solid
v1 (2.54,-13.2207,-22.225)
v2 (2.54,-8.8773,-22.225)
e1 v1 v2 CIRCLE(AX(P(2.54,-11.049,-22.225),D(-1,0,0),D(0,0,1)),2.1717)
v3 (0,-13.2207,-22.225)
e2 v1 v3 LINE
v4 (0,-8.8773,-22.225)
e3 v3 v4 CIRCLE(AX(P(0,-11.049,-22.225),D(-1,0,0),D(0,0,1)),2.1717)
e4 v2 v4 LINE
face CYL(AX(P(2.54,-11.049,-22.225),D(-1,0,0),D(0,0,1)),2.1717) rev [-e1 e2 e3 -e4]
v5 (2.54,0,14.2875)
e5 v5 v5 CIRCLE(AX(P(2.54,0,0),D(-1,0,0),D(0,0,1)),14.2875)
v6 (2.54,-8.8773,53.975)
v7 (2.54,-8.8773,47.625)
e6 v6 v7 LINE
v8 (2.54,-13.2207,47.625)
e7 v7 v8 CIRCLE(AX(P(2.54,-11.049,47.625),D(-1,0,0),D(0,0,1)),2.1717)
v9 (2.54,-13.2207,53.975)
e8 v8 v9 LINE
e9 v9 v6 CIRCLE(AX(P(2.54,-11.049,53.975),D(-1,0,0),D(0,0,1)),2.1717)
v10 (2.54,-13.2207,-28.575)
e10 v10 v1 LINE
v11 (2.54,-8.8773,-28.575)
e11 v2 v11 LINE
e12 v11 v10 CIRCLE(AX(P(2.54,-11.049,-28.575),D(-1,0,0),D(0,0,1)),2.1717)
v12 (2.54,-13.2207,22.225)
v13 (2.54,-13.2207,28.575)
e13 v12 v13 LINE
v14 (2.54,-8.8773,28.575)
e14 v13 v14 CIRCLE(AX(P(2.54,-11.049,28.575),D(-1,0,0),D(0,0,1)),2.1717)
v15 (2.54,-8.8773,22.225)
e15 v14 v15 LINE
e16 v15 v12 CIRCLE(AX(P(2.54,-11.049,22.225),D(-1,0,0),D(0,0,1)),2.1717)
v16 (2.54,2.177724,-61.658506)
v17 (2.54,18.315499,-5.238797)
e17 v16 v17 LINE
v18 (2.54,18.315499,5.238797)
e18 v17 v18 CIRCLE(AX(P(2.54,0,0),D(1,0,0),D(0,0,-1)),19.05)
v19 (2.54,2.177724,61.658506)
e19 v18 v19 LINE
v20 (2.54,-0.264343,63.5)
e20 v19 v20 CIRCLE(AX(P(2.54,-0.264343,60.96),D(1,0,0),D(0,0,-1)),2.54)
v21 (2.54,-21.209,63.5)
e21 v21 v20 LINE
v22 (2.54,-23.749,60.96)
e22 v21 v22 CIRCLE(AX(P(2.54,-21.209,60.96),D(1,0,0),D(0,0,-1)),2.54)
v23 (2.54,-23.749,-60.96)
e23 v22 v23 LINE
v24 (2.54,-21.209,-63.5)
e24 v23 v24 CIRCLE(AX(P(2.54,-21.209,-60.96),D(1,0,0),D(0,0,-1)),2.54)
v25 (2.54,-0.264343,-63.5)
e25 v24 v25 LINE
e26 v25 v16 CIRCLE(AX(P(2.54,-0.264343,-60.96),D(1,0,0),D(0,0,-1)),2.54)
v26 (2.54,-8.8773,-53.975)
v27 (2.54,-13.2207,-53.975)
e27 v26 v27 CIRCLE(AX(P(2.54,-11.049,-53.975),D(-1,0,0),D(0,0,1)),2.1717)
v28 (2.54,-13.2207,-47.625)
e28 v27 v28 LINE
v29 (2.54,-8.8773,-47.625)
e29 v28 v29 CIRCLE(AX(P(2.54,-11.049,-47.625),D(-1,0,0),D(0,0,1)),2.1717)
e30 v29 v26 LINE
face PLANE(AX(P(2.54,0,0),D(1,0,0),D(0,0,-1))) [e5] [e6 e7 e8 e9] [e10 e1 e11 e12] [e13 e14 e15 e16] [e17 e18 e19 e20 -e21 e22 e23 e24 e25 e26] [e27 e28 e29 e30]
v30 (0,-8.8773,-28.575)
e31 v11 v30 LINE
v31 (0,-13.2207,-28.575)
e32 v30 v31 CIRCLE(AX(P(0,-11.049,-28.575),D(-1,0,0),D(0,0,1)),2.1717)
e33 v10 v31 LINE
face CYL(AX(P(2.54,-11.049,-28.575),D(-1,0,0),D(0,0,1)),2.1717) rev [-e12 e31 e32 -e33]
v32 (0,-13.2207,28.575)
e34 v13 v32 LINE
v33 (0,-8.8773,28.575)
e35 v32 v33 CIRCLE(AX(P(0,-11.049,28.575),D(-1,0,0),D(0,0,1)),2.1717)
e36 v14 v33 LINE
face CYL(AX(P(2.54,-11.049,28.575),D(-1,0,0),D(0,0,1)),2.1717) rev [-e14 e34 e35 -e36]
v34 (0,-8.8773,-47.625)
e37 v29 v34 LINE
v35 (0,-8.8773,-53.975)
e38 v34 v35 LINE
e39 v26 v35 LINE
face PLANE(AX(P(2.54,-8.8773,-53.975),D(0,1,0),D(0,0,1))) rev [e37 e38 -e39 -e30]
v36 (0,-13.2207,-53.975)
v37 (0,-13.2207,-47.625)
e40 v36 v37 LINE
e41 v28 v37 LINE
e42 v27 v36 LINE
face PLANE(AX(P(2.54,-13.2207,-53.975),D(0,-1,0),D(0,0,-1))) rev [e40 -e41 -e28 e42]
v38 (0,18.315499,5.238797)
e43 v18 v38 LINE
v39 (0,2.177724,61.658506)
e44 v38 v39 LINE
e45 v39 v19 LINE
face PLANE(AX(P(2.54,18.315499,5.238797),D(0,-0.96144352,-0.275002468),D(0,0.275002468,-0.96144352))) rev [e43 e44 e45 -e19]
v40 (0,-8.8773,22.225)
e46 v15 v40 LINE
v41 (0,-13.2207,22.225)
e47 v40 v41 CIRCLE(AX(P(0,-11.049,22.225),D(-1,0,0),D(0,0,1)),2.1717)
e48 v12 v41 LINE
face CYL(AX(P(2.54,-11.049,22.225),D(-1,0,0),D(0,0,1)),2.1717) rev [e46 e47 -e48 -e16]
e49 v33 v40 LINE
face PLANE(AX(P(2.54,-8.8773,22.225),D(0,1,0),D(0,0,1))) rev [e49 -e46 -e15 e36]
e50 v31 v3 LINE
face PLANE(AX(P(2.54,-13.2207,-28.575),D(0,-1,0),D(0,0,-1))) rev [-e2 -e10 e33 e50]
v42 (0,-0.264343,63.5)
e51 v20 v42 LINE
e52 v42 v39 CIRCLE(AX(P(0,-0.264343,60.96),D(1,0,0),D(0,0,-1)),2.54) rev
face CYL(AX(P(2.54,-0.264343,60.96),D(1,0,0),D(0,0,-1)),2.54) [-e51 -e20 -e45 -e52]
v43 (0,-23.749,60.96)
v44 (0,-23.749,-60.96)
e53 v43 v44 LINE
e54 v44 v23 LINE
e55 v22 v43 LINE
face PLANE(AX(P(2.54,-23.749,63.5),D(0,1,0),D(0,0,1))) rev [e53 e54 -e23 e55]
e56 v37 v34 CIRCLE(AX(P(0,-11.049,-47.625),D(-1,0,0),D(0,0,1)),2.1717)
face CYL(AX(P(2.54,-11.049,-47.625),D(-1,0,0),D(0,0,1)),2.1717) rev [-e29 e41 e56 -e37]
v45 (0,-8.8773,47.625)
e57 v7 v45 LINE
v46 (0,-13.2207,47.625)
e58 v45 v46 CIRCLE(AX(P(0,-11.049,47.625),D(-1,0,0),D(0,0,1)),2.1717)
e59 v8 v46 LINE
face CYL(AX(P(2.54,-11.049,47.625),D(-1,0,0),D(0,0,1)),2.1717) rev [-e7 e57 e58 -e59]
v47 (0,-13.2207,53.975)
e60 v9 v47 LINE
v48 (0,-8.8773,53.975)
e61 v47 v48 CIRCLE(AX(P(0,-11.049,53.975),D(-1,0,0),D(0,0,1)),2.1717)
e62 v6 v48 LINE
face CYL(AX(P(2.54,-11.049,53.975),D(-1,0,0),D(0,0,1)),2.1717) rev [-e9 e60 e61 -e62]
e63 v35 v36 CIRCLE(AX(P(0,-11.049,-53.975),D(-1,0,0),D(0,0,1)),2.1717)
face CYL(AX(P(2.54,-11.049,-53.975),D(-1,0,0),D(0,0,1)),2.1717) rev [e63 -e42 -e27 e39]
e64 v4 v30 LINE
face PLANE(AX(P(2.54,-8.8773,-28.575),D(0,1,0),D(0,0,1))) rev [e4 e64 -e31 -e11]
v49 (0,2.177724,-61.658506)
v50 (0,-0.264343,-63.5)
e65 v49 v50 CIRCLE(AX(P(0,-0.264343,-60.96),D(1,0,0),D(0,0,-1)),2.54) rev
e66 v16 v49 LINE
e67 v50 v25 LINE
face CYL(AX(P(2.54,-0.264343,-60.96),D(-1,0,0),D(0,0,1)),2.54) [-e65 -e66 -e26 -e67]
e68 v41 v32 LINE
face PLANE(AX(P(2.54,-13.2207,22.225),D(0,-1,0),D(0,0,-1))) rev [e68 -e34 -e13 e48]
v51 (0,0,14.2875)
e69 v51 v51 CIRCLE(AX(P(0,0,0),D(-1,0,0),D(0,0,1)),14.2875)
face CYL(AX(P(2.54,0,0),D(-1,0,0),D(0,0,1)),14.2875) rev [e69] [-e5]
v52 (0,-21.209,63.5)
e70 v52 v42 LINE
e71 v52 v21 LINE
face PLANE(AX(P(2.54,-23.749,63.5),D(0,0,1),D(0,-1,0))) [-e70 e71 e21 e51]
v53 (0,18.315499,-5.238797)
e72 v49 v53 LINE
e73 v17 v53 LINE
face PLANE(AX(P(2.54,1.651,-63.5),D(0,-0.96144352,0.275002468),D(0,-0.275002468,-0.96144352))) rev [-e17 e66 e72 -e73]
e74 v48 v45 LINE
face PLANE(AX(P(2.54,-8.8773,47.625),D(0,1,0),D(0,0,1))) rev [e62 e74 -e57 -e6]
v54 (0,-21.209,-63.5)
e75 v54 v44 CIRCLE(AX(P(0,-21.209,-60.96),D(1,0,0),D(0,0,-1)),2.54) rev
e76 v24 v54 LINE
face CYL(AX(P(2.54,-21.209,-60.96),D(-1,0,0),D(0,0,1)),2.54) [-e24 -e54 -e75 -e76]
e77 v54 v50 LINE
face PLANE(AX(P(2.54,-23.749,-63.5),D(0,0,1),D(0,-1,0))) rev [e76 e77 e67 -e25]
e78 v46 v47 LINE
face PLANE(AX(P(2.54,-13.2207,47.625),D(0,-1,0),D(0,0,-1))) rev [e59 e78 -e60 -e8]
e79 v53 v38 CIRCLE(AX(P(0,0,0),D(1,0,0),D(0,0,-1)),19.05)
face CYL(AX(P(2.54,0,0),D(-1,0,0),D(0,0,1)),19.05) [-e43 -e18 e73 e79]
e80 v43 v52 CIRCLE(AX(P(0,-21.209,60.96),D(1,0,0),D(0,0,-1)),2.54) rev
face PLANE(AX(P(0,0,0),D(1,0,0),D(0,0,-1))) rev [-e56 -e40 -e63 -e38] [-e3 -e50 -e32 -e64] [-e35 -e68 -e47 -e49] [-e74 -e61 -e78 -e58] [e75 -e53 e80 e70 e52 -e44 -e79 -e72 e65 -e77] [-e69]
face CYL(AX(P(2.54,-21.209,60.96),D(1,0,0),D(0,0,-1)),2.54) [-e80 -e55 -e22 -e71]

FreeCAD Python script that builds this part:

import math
import FreeCAD as App
import Part
import Sketcher

V = App.Vector
Q = App.Units.Quantity


def edges_at(feature, points):
    """Names of the edges that pass closest to the given points."""
    edges = feature.Shape.Edges
    near = lambda p: min(range(len(edges)), key=lambda i: edges[i].distToShape(Part.Vertex(*p))[0])
    return sorted({f"Edge{near(p) + 1}" for p in points})

doc = App.newDocument("Part")
params = doc.addObject("Spreadsheet::Sheet", "Params")
for row, (alias, value) in enumerate([
    ("sketch1_width", "1 in"),
    ("sketch1_height", "5 in"),
    ("sketch1_radius", "0.75 in"),
    ("pad1_length", "0.1 in"),
    ("sketch2_diameter", "1.125 in"),
    ("sketch2_height", "0.25 in"),
    ("fillet_radius", "0.1 in"),
], start=1):
    params.set(f"A{row}", alias)
    params.set(f"B{row}", "=" + value)
    params.setAlias(f"B{row}", alias)

body = doc.addObject("PartDesign::Body", "Body")

sketch1 = body.newObject("Sketcher::SketchObject", "Sketch")
sketch1.AttachmentSupport = (doc.getObject("YZ_Plane"), [""])
sketch1.MapMode = "FlatFace"
sketch1.addGeometry([
    Part.LineSegment(V(-24, 64, 0), V(-24, -64, 0)),
    Part.LineSegment(V(-24, -64, 0), V(2, -64, 0)),
    Part.LineSegment(V(2, -64, 0), V(18, -5, 0)),
    Part.ArcOfCircle(Part.Circle(V(0, 0, 0), V(0, 0, 1), 19), math.radians(-16), math.radians(16)),
    Part.LineSegment(V(18, 5, 0), V(2, 64, 0)),
    Part.LineSegment(V(2, 64, 0), V(-24, 64, 0)),
], False)
sketch1.addConstraint([
    Sketcher.Constraint("Coincident", 0, 2, 1, 1),
    Sketcher.Constraint("Coincident", 1, 2, 2, 1),
    Sketcher.Constraint("Tangent", 2, 2, 3, 1),
    Sketcher.Constraint("Tangent", 3, 2, 4, 1),
    Sketcher.Constraint("Coincident", 4, 2, 5, 1),
    Sketcher.Constraint("Coincident", 5, 2, 0, 1),
    Sketcher.Constraint("Vertical", 0),
    Sketcher.Constraint("Horizontal", 1),
    Sketcher.Constraint("Horizontal", 5),
    Sketcher.Constraint("Coincident", 3, 3, -1, 1),
    Sketcher.Constraint("Symmetric", 1, 2, 4, 2, -1),
    Sketcher.Constraint("DistanceX", 1, 1, 1, 2, Q("1 in")),
    Sketcher.Constraint("DistanceY", 0, 2, 0, 1, Q("5 in")),
    Sketcher.Constraint("Radius", 3, Q("0.75 in")),
    Sketcher.Constraint("DistanceX", 0, 2, -1, 1, Q("0.935 in")),
])
sketch1.setExpression("Constraints[11]", "Params.sketch1_width")
sketch1.setExpression("Constraints[12]", "Params.sketch1_height")
sketch1.setExpression("Constraints[13]", "Params.sketch1_radius")
pad1 = body.newObject("PartDesign::Pad", "Pad")
pad1.Profile = sketch1
pad1.setExpression("Length", "Params.pad1_length")

sketch2 = body.newObject("Sketcher::SketchObject", "Sketch001")
sketch2.AttachmentSupport = (doc.getObject("YZ_Plane"), [""])
sketch2.MapMode = "FlatFace"
sketch2.addGeometry([
    Part.Circle(V(0, 0, 0), V(0, 0, 1), 14.3),
    Part.LineSegment(V(-8.9, -47.6, 0), V(-8.9, -54, 0)),
    Part.ArcOfCircle(Part.Circle(V(-11, -54, 0), V(0, 0, 1), 2.2), math.radians(180), math.radians(360)),
    Part.LineSegment(V(-13.2, -54, 0), V(-13.2, -47.6, 0)),
    Part.ArcOfCircle(Part.Circle(V(-11, -47.6, 0), V(0, 0, 1), 2.2), math.radians(0), math.radians(180)),
    Part.LineSegment(V(-8.9, -22.2, 0), V(-8.9, -28.6, 0)),
    Part.ArcOfCircle(Part.Circle(V(-11, -28.6, 0), V(0, 0, 1), 2.2), math.radians(180), math.radians(360)),
    Part.LineSegment(V(-13.2, -28.6, 0), V(-13.2, -22.2, 0)),
    Part.ArcOfCircle(Part.Circle(V(-11, -22.2, 0), V(0, 0, 1), 2.2), math.radians(0), math.radians(180)),
    Part.LineSegment(V(-8.9, 28.6, 0), V(-8.9, 22.2, 0)),
    Part.ArcOfCircle(Part.Circle(V(-11, 22.2, 0), V(0, 0, 1), 2.2), math.radians(180), math.radians(360)),
    Part.LineSegment(V(-13.2, 22.2, 0), V(-13.2, 28.6, 0)),
    Part.ArcOfCircle(Part.Circle(V(-11, 28.6, 0), V(0, 0, 1), 2.2), math.radians(0), math.radians(180)),
    Part.LineSegment(V(-8.9, 54, 0), V(-8.9, 47.6, 0)),
    Part.ArcOfCircle(Part.Circle(V(-11, 47.6, 0), V(0, 0, 1), 2.2), math.radians(180), math.radians(360)),
    Part.LineSegment(V(-13.2, 47.6, 0), V(-13.2, 54, 0)),
    Part.ArcOfCircle(Part.Circle(V(-11, 54, 0), V(0, 0, 1), 2.2), math.radians(0), math.radians(180)),
], False)
sketch2.addConstraint([
    Sketcher.Constraint("Tangent", 1, 2, 2, 2),
    Sketcher.Constraint("Tangent", 2, 1, 3, 1),
    Sketcher.Constraint("Tangent", 3, 2, 4, 2),
    Sketcher.Constraint("Tangent", 4, 1, 1, 1),
    Sketcher.Constraint("Tangent", 5, 2, 6, 2),
    Sketcher.Constraint("Tangent", 6, 1, 7, 1),
    Sketcher.Constraint("Tangent", 7, 2, 8, 2),
    Sketcher.Constraint("Tangent", 8, 1, 5, 1),
    Sketcher.Constraint("Tangent", 9, 2, 10, 2),
    Sketcher.Constraint("Tangent", 10, 1, 11, 1),
    Sketcher.Constraint("Tangent", 11, 2, 12, 2),
    Sketcher.Constraint("Tangent", 12, 1, 9, 1),
    Sketcher.Constraint("Tangent", 13, 2, 14, 2),
    Sketcher.Constraint("Tangent", 14, 1, 15, 1),
    Sketcher.Constraint("Tangent", 15, 2, 16, 2),
    Sketcher.Constraint("Tangent", 16, 1, 13, 1),
    Sketcher.Constraint("Vertical", 1),
    Sketcher.Constraint("Vertical", 3),
    Sketcher.Constraint("Vertical", 5),
    Sketcher.Constraint("Vertical", 7),
    Sketcher.Constraint("Vertical", 9),
    Sketcher.Constraint("Vertical", 11),
    Sketcher.Constraint("Vertical", 13),
    Sketcher.Constraint("Vertical", 15),
    Sketcher.Constraint("Coincident", 0, 3, -1, 1),
    Sketcher.Constraint("Equal", 4, 6),
    Sketcher.Constraint("Equal", 8, 10),
    Sketcher.Constraint("Equal", 12, 14),
    Sketcher.Constraint("Symmetric", 8, 3, 10, 3, -1),
    Sketcher.Constraint("Symmetric", 4, 3, 14, 3, -1),
    Sketcher.Constraint("Vertical", 4, 3, 6, 3),
    Sketcher.Constraint("Equal", 3, 5),
    Sketcher.Constraint("Equal", 7, 9),
    Sketcher.Constraint("Equal", 11, 13),
    Sketcher.Constraint("Diameter", 0, Q("1.125 in")),
    Sketcher.Constraint("DistanceY", 2, 3, 6, 3, Q("1 in")),
    Sketcher.Constraint("DistanceY", 6, 3, 10, 3, Q("2 in")),
    Sketcher.Constraint("DistanceY", 1, 2, 1, 1, Q("0.25 in")),
    Sketcher.Constraint("Radius", 2, Q("0.0855 in")),
    Sketcher.Constraint("DistanceX", 2, 3, -1, 1, Q("0.435 in")),
])
sketch2.setExpression("Constraints[34]", "Params.sketch2_diameter")
sketch2.setExpression("Constraints[37]", "Params.sketch2_height")
pocket1 = body.newObject("PartDesign::Pocket", "Pocket")
pocket1.Profile = sketch2
pocket1.Type = "ThroughAll"
pocket1.Reversed = True
doc.recompute()

fillet = body.newObject("PartDesign::Fillet", "Fillet")
fillet.Base = (pocket1, edges_at(pocket1, [
    (1.27, -23.749, 63.5),
    (1.27, 1.651, 63.5),
    (1.27, 1.651, -63.5),
    (1.27, -23.749, -63.5),
]))
fillet.setExpression("Radius", "Params.fillet_radius")

doc.recompute()
